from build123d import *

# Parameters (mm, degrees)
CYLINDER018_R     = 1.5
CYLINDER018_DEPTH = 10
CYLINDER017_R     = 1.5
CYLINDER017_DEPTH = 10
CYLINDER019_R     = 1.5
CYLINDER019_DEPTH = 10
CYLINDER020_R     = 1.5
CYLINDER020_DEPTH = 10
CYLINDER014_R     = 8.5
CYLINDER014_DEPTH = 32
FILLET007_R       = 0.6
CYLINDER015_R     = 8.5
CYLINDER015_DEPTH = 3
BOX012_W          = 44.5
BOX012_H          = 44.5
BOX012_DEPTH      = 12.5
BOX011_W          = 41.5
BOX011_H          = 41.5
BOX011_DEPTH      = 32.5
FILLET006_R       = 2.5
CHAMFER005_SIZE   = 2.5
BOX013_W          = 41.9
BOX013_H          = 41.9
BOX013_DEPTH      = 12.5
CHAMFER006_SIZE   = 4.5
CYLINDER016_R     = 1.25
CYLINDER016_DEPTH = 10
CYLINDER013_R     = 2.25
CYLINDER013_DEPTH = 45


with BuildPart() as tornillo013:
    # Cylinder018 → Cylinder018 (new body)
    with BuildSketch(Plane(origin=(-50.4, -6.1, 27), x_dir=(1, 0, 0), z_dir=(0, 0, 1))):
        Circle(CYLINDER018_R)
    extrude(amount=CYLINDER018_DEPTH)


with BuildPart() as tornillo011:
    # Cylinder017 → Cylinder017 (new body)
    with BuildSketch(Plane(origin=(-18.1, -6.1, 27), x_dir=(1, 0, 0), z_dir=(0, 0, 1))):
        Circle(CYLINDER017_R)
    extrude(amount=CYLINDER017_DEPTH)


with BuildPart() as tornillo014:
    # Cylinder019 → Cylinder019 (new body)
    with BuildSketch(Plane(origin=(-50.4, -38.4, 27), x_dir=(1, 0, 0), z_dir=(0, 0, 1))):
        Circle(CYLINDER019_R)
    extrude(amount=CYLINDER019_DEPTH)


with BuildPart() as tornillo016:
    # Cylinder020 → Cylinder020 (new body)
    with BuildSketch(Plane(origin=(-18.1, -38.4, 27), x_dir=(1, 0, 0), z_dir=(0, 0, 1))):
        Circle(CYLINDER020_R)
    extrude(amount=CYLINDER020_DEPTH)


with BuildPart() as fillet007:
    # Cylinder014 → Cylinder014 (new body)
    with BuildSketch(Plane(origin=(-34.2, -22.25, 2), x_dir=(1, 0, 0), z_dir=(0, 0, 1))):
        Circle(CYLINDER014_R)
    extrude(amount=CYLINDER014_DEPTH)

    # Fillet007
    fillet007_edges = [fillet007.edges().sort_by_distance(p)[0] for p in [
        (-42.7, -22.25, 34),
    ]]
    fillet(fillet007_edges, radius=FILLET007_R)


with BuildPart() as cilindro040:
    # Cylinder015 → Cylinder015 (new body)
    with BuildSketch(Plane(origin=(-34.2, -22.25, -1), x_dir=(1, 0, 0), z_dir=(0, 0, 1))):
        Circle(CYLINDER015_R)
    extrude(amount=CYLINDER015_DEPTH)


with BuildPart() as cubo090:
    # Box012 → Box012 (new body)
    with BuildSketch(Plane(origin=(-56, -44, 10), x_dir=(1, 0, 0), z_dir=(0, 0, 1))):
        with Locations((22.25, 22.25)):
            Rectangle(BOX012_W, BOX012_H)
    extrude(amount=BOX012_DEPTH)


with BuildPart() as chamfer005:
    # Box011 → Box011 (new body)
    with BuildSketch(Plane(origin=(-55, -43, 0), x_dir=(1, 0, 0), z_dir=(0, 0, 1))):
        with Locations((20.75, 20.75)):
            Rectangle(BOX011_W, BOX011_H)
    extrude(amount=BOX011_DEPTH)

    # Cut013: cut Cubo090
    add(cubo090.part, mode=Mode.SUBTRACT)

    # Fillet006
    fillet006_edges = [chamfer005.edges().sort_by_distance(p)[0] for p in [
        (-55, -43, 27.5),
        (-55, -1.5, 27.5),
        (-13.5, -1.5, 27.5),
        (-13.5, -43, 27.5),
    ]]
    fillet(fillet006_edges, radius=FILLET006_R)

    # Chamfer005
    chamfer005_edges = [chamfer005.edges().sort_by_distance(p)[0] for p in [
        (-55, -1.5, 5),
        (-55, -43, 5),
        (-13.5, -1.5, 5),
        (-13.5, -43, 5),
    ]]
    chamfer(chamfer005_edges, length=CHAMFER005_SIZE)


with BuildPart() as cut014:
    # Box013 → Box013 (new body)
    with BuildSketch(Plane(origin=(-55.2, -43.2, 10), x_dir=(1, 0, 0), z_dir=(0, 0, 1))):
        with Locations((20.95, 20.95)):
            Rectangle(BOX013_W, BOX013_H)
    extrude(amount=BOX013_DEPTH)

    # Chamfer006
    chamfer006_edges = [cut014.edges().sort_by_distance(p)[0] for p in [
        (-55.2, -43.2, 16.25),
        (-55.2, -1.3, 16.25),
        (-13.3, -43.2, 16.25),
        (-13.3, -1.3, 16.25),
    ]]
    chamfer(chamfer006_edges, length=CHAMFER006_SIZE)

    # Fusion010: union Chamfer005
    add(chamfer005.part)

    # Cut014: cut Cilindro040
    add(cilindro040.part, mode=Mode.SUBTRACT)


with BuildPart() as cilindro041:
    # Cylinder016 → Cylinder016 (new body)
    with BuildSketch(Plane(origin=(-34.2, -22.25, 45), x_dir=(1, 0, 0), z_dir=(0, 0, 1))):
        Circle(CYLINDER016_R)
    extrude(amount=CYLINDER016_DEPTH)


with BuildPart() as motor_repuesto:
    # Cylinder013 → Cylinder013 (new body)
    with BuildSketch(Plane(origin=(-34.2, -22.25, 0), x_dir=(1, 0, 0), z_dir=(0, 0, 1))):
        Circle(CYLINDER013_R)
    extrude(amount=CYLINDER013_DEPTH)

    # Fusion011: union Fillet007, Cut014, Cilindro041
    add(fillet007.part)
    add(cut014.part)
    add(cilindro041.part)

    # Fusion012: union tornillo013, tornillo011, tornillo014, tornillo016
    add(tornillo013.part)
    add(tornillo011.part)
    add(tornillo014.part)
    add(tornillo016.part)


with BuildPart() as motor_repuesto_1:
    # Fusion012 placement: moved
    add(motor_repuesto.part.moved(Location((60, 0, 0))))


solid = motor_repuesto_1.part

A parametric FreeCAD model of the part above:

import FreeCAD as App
import Part
import Sketcher
from FreeCAD import Vector
Q = App.Units.Quantity


def edges_at(feature, points):
    """Names of the edges that pass closest to the given points."""
    edges = feature.Shape.Edges
    near = lambda p: min(range(len(edges)), key=lambda i: edges[i].distToShape(Part.Vertex(*p))[0])
    return sorted({f"Edge{near(p) + 1}" for p in points})

doc = App.newDocument("Part")
body = doc.addObject("PartDesign::Body", "Body")

# Sketch on XY plane
sketch1 = body.newObject("Sketcher::SketchObject", "Sketch")
sketch1.AttachmentSupport = (doc.getObject("XY_Plane"), [""])
sketch1.MapMode = "FlatFace"
sketch1.AttachmentOffset = App.Placement(Vector(0, 0, 27), App.Rotation())
sketch1.addGeometry(Part.Circle(Vector(-50.4, -6.1, 0), Vector(0, 0, 1), 1.5), False)
sketch1.addConstraint(Sketcher.Constraint("Diameter", 0, Q("3 mm")))
sketch1.addConstraint(Sketcher.Constraint("DistanceX", 0, 3, -1, 1, Q("50.4 mm")))
sketch1.addConstraint(Sketcher.Constraint("DistanceY", 0, 3, -1, 1, Q("6.1 mm")))
pad1 = body.newObject("PartDesign::Pad", "Pad")
pad1.Profile = sketch1
pad1.Length = 10
body2 = doc.addObject("PartDesign::Body", "Body001")

# Sketch on XY plane
sketch2 = body2.newObject("Sketcher::SketchObject", "Sketch001")
sketch2.AttachmentSupport = (doc.getObject("XY_Plane001"), [""])
sketch2.MapMode = "FlatFace"
sketch2.AttachmentOffset = App.Placement(Vector(0, 0, 27), App.Rotation())
sketch2.addGeometry(Part.Circle(Vector(-18.1, -6.1, 0), Vector(0, 0, 1), 1.5), False)
sketch2.addConstraint(Sketcher.Constraint("Diameter", 0, Q("3 mm")))
sketch2.addConstraint(Sketcher.Constraint("DistanceX", 0, 3, -1, 1, Q("18.1 mm")))
sketch2.addConstraint(Sketcher.Constraint("DistanceY", 0, 3, -1, 1, Q("6.1 mm")))
pad2 = body2.newObject("PartDesign::Pad", "Pad001")
pad2.Profile = sketch2
pad2.Length = 10
body3 = doc.addObject("PartDesign::Body", "Body002")

# Sketch on XY plane
sketch3 = body3.newObject("Sketcher::SketchObject", "Sketch002")
sketch3.AttachmentSupport = (doc.getObject("XY_Plane002"), [""])
sketch3.MapMode = "FlatFace"
sketch3.AttachmentOffset = App.Placement(Vector(0, 0, 27), App.Rotation())
sketch3.addGeometry(Part.Circle(Vector(-50.4, -38.4, 0), Vector(0, 0, 1), 1.5), False)
sketch3.addConstraint(Sketcher.Constraint("Diameter", 0, Q("3 mm")))
sketch3.addConstraint(Sketcher.Constraint("DistanceX", 0, 3, -1, 1, Q("50.4 mm")))
sketch3.addConstraint(Sketcher.Constraint("DistanceY", 0, 3, -1, 1, Q("38.4 mm")))
pad3 = body3.newObject("PartDesign::Pad", "Pad002")
pad3.Profile = sketch3
pad3.Length = 10
body4 = doc.addObject("PartDesign::Body", "Body003")

# Sketch on XY plane
sketch4 = body4.newObject("Sketcher::SketchObject", "Sketch003")
sketch4.AttachmentSupport = (doc.getObject("XY_Plane003"), [""])
sketch4.MapMode = "FlatFace"
sketch4.AttachmentOffset = App.Placement(Vector(0, 0, 27), App.Rotation())
sketch4.addGeometry(Part.Circle(Vector(-18.1, -38.4, 0), Vector(0, 0, 1), 1.5), False)
sketch4.addConstraint(Sketcher.Constraint("Diameter", 0, Q("3 mm")))
sketch4.addConstraint(Sketcher.Constraint("DistanceX", 0, 3, -1, 1, Q("18.1 mm")))
sketch4.addConstraint(Sketcher.Constraint("DistanceY", 0, 3, -1, 1, Q("38.4 mm")))
pad4 = body4.newObject("PartDesign::Pad", "Pad003")
pad4.Profile = sketch4
pad4.Length = 10
body5 = doc.addObject("PartDesign::Body", "Body004")

# Sketch on XY plane
sketch5 = body5.newObject("Sketcher::SketchObject", "Sketch004")
sketch5.AttachmentSupport = (doc.getObject("XY_Plane004"), [""])
sketch5.MapMode = "FlatFace"
sketch5.AttachmentOffset = App.Placement(Vector(0, 0, 2), App.Rotation())
sketch5.addGeometry(Part.Circle(Vector(-34, -22, 0), Vector(0, 0, 1), 8), False)
sketch5.addConstraint(Sketcher.Constraint("Diameter", 0, Q("17 mm")))
sketch5.addConstraint(Sketcher.Constraint("DistanceX", 0, 3, -1, 1, Q("34.2 mm")))
sketch5.addConstraint(Sketcher.Constraint("DistanceY", 0, 3, -1, 1, Q("22.25 mm")))
pad5 = body5.newObject("PartDesign::Pad", "Pad004")
pad5.Profile = sketch5
pad5.Length = 32
doc.recompute()

fillet = body5.newObject("PartDesign::Fillet", "Fillet")
fillet.Base = (pad5, edges_at(pad5, [(-42.7, -22.25, 34)]))
fillet.Radius = 0.6
body6 = doc.addObject("PartDesign::Body", "Body005")

# Sketch on XY plane
sketch6 = body6.newObject("Sketcher::SketchObject", "Sketch005")
sketch6.AttachmentSupport = (doc.getObject("XY_Plane005"), [""])
sketch6.MapMode = "FlatFace"
sketch6.AttachmentOffset = App.Placement(Vector(0, 0, -1), App.Rotation())
sketch6.addGeometry(Part.Circle(Vector(-34, -22, 0), Vector(0, 0, 1), 8), False)
sketch6.addConstraint(Sketcher.Constraint("Diameter", 0, Q("17 mm")))
sketch6.addConstraint(Sketcher.Constraint("DistanceX", 0, 3, -1, 1, Q("34.2 mm")))
sketch6.addConstraint(Sketcher.Constraint("DistanceY", 0, 3, -1, 1, Q("22.25 mm")))
pad6 = body6.newObject("PartDesign::Pad", "Pad005")
pad6.Profile = sketch6
pad6.Length = 3
body7 = doc.addObject("PartDesign::Body", "Body006")

# Sketch on XY plane
sketch7 = body7.newObject("Sketcher::SketchObject", "Sketch006")
sketch7.AttachmentSupport = (doc.getObject("XY_Plane006"), [""])
sketch7.MapMode = "FlatFace"
sketch7.AttachmentOffset = App.Placement(Vector(0, 0, 10), App.Rotation())
sketch7.addGeometry(Part.LineSegment(Vector(-56, 0, 0), Vector(-56, -44, 0)), False)
sketch7.addGeometry(Part.LineSegment(Vector(-56, -44, 0), Vector(-12, -44, 0)), False)
sketch7.addGeometry(Part.LineSegment(Vector(-12, -44, 0), Vector(-12, 0, 0)), False)
sketch7.addGeometry(Part.LineSegment(Vector(-12, 0, 0), Vector(-56, 0, 0)), False)
sketch7.addConstraint(Sketcher.Constraint("Coincident", 0, 2, 1, 1))
sketch7.addConstraint(Sketcher.Constraint("Coincident", 1, 2, 2, 1))
sketch7.addConstraint(Sketcher.Constraint("Coincident", 2, 2, 3, 1))
sketch7.addConstraint(Sketcher.Constraint("Coincident", 3, 2, 0, 1))
sketch7.addConstraint(Sketcher.Constraint("Vertical", 0))
sketch7.addConstraint(Sketcher.Constraint("Horizontal", 1))
sketch7.addConstraint(Sketcher.Constraint("Vertical", 2))
sketch7.addConstraint(Sketcher.Constraint("Horizontal", 3))
sketch7.addConstraint(Sketcher.Constraint("Equal", 3, 0))
sketch7.addConstraint(Sketcher.Constraint("DistanceX", 1, 1, 1, 2, Q("44.5 mm")))
sketch7.addConstraint(Sketcher.Constraint("DistanceX", 0, 2, -1, 1, Q("56 mm")))
sketch7.addConstraint(Sketcher.Constraint("DistanceY", 0, 2, -1, 1, Q("44 mm")))
pad7 = body7.newObject("PartDesign::Pad", "Pad006")
pad7.Profile = sketch7
pad7.Length = 12.5
body8 = doc.addObject("PartDesign::Body", "Body007")
body8.AllowCompound = True

# Sketch on XY plane
sketch8 = body8.newObject("Sketcher::SketchObject", "Sketch007")
sketch8.AttachmentSupport = (doc.getObject("XY_Plane007"), [""])
sketch8.MapMode = "FlatFace"
sketch8.addGeometry(Part.LineSegment(Vector(-55, -2, 0), Vector(-55, -43, 0)), False)
sketch8.addGeometry(Part.LineSegment(Vector(-55, -43, 0), Vector(-14, -43, 0)), False)
sketch8.addGeometry(Part.LineSegment(Vector(-14, -43, 0), Vector(-14, -2, 0)), False)
sketch8.addGeometry(Part.LineSegment(Vector(-14, -2, 0), Vector(-55, -2, 0)), False)
sketch8.addConstraint(Sketcher.Constraint("Coincident", 0, 2, 1, 1))
sketch8.addConstraint(Sketcher.Constraint("Coincident", 1, 2, 2, 1))
sketch8.addConstraint(Sketcher.Constraint("Coincident", 2, 2, 3, 1))
sketch8.addConstraint(Sketcher.Constraint("Coincident", 3, 2, 0, 1))
sketch8.addConstraint(Sketcher.Constraint("Vertical", 0))
sketch8.addConstraint(Sketcher.Constraint("Horizontal", 1))
sketch8.addConstraint(Sketcher.Constraint("Vertical", 2))
sketch8.addConstraint(Sketcher.Constraint("Horizontal", 3))
sketch8.addConstraint(Sketcher.Constraint("Equal", 3, 0))
sketch8.addConstraint(Sketcher.Constraint("DistanceX", 1, 1, 1, 2, Q("41.5 mm")))
sketch8.addConstraint(Sketcher.Constraint("DistanceX", 0, 2, -1, 1, Q("55 mm")))
sketch8.addConstraint(Sketcher.Constraint("DistanceY", 0, 2, -1, 1, Q("43 mm")))
pad8 = body8.newObject("PartDesign::Pad", "Pad007")
pad8.Profile = sketch8
pad8.Length = 32.5
doc.recompute()

boolean = body8.newObject("PartDesign::Boolean", "Boolean")
boolean.Type = "Cut"
boolean.addObjects([body7])
doc.recompute()

fillet2 = body8.newObject("PartDesign::Fillet", "Fillet001")
fillet2.Base = (boolean, edges_at(boolean, [
    (-55, -43, 27.5),
    (-55, -1.5, 27.5),
    (-13.5, -1.5, 27.5),
    (-13.5, -43, 27.5),
]))
fillet2.Radius = 2.5
doc.recompute()

chamfer = body8.newObject("PartDesign::Chamfer", "Chamfer")
chamfer.Base = (fillet2, edges_at(fillet2, [
    (-55, -1.5, 5),
    (-55, -43, 5),
    (-13.5, -1.5, 5),
    (-13.5, -43, 5),
]))
chamfer.Size = 2.5
body9 = doc.addObject("PartDesign::Body", "Body008")

# Sketch on XY plane
sketch9 = body9.newObject("Sketcher::SketchObject", "Sketch008")
sketch9.AttachmentSupport = (doc.getObject("XY_Plane008"), [""])
sketch9.MapMode = "FlatFace"
sketch9.AttachmentOffset = App.Placement(Vector(0, 0, 10), App.Rotation())
sketch9.addGeometry(Part.LineSegment(Vector(-55, -1, 0), Vector(-55, -43, 0)), False)
sketch9.addGeometry(Part.LineSegment(Vector(-55, -43, 0), Vector(-13, -43, 0)), False)
sketch9.addGeometry(Part.LineSegment(Vector(-13, -43, 0), Vector(-13, -1, 0)), False)
sketch9.addGeometry(Part.LineSegment(Vector(-13, -1, 0), Vector(-55, -1, 0)), False)
sketch9.addConstraint(Sketcher.Constraint("Coincident", 0, 2, 1, 1))
sketch9.addConstraint(Sketcher.Constraint("Coincident", 1, 2, 2, 1))
sketch9.addConstraint(Sketcher.Constraint("Coincident", 2, 2, 3, 1))
sketch9.addConstraint(Sketcher.Constraint("Coincident", 3, 2, 0, 1))
sketch9.addConstraint(Sketcher.Constraint("Vertical", 0))
sketch9.addConstraint(Sketcher.Constraint("Horizontal", 1))
sketch9.addConstraint(Sketcher.Constraint("Vertical", 2))
sketch9.addConstraint(Sketcher.Constraint("Horizontal", 3))
sketch9.addConstraint(Sketcher.Constraint("Equal", 3, 0))
sketch9.addConstraint(Sketcher.Constraint("DistanceX", 1, 1, 1, 2, Q("41.9 mm")))
sketch9.addConstraint(Sketcher.Constraint("DistanceX", 0, 2, -1, 1, Q("55.2 mm")))
sketch9.addConstraint(Sketcher.Constraint("DistanceY", 0, 2, -1, 1, Q("43.2 mm")))
pad9 = body9.newObject("PartDesign::Pad", "Pad008")
pad9.Profile = sketch9
pad9.Length = 12.5
doc.recompute()

chamfer2 = body9.newObject("PartDesign::Chamfer", "Chamfer001")
chamfer2.Base = (pad9, edges_at(pad9, [
    (-55.2, -43.2, 16.25),
    (-55.2, -1.3, 16.25),
    (-13.3, -43.2, 16.25),
    (-13.3, -1.3, 16.25),
]))
chamfer2.Size = 4.5
doc.recompute()

boolean2 = body9.newObject("PartDesign::Boolean", "Boolean001")
boolean2.Type = "Fuse"
boolean2.addObjects([body8])
doc.recompute()

boolean3 = body9.newObject("PartDesign::Boolean", "Boolean002")
boolean3.Type = "Cut"
boolean3.addObjects([body6])
body10 = doc.addObject("PartDesign::Body", "Body009")

# Sketch on XY plane
sketch10 = body10.newObject("Sketcher::SketchObject", "Sketch009")
sketch10.AttachmentSupport = (doc.getObject("XY_Plane009"), [""])
sketch10.MapMode = "FlatFace"
sketch10.AttachmentOffset = App.Placement(Vector(0, 0, 45), App.Rotation())
sketch10.addGeometry(Part.Circle(Vector(-34.2, -22.2, 0), Vector(0, 0, 1), 1.2), False)
sketch10.addConstraint(Sketcher.Constraint("Diameter", 0, Q("2.5 mm")))
sketch10.addConstraint(Sketcher.Constraint("DistanceX", 0, 3, -1, 1, Q("34.2 mm")))
sketch10.addConstraint(Sketcher.Constraint("DistanceY", 0, 3, -1, 1, Q("22.25 mm")))
pad10 = body10.newObject("PartDesign::Pad", "Pad009")
pad10.Profile = sketch10
pad10.Length = 10
body11 = doc.addObject("PartDesign::Body", "Body010")

# Sketch on XY plane
sketch11 = body11.newObject("Sketcher::SketchObject", "Sketch010")
sketch11.AttachmentSupport = (doc.getObject("XY_Plane010"), [""])
sketch11.MapMode = "FlatFace"
sketch11.addGeometry(Part.Circle(Vector(-34.2, -22.2, 0), Vector(0, 0, 1), 2.2), False)
sketch11.addConstraint(Sketcher.Constraint("Diameter", 0, Q("4.5 mm")))
sketch11.addConstraint(Sketcher.Constraint("DistanceX", 0, 3, -1, 1, Q("34.2 mm")))
sketch11.addConstraint(Sketcher.Constraint("DistanceY", 0, 3, -1, 1, Q("22.25 mm")))
pad11 = body11.newObject("PartDesign::Pad", "Pad010")
pad11.Profile = sketch11
pad11.Length = 45
doc.recompute()

boolean4 = body11.newObject("PartDesign::Boolean", "Boolean003")
boolean4.Type = "Fuse"
boolean4.addObjects([body5])
doc.recompute()

boolean5 = body11.newObject("PartDesign::Boolean", "Boolean004")
boolean5.Type = "Fuse"
boolean5.addObjects([body9])
doc.recompute()

boolean6 = body11.newObject("PartDesign::Boolean", "Boolean005")
boolean6.Type = "Fuse"
boolean6.addObjects([body10])
doc.recompute()

boolean7 = body11.newObject("PartDesign::Boolean", "Boolean006")
boolean7.Type = "Fuse"
boolean7.addObjects([body])
doc.recompute()

boolean8 = body11.newObject("PartDesign::Boolean", "Boolean007")
boolean8.Type = "Fuse"
boolean8.addObjects([body2])
doc.recompute()

boolean9 = body11.newObject("PartDesign::Boolean", "Boolean008")
boolean9.Type = "Fuse"
boolean9.addObjects([body3])
doc.recompute()

boolean10 = body11.newObject("PartDesign::Boolean", "Boolean009")
boolean10.Type = "Fuse"
boolean10.addObjects([body4])
body12 = doc.addObject("PartDesign::Body", "Body011")
doc.recompute()

body11.Placement = App.Placement(Vector(60, 0, 0), App.Rotation(Vector(0, 0, 1), 0))
boolean11 = body12.newObject("PartDesign::Boolean", "Boolean010")
boolean11.Type = "Fuse"
boolean11.addObjects([body11])

doc.recompute()
